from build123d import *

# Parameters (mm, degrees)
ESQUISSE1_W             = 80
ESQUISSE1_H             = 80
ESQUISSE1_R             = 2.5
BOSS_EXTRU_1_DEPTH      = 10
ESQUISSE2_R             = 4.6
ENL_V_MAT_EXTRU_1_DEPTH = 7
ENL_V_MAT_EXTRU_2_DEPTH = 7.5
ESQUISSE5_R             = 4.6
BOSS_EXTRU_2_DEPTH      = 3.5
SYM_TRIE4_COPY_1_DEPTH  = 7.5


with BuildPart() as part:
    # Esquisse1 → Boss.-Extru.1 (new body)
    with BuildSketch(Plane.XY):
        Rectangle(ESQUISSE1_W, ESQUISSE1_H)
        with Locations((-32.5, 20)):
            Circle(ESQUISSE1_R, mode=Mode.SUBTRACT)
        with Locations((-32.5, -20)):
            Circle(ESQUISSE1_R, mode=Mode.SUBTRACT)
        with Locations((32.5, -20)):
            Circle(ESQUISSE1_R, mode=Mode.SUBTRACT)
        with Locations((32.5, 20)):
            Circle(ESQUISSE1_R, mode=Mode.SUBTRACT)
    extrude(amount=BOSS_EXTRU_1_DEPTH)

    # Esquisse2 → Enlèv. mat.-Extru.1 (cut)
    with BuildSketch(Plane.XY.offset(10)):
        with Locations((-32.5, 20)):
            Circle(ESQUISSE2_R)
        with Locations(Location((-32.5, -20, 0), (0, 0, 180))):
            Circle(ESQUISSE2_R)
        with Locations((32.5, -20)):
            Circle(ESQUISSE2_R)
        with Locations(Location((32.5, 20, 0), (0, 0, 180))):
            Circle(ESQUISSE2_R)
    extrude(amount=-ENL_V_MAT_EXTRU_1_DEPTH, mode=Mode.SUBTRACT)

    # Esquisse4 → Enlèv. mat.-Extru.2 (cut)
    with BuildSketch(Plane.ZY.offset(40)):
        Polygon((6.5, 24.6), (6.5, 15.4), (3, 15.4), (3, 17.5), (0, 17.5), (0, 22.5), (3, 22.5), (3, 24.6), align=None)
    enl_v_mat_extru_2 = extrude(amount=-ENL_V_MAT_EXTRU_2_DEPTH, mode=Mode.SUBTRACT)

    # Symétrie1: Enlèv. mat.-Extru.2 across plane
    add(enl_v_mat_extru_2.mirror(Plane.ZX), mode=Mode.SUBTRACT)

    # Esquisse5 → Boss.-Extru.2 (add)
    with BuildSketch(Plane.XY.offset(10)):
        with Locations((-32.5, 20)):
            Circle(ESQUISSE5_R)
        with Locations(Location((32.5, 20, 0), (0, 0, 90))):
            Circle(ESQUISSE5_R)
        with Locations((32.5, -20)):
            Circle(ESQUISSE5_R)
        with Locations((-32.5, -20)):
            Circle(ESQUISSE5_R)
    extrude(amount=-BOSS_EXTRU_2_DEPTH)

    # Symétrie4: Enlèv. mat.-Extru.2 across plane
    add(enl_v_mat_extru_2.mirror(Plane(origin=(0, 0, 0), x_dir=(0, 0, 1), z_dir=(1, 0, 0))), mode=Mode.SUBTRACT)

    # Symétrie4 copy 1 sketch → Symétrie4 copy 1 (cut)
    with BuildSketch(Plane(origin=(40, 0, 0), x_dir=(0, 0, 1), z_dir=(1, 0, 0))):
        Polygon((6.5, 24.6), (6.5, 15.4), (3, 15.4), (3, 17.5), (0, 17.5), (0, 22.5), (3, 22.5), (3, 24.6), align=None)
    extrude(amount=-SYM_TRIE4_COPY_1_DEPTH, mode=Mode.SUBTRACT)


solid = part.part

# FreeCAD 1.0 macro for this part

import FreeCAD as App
import Part
import Sketcher
from FreeCAD import Vector


def add_polygon(sketch, points):
    """Adds a closed chain of lines whose ends are joined by coincident constraints."""
    first, n = sketch.GeometryCount, len(points)
    for a, b in zip(points, points[1:] + points[:1]):
        sketch.addGeometry(Part.LineSegment(App.Vector(*a, 0), App.Vector(*b, 0)), False)
    for i in range(n):
        sketch.addConstraint(Sketcher.Constraint("Coincident", first + i, 2, first + (i + 1) % n, 1))

doc = App.newDocument("Part")
body = doc.addObject("PartDesign::Body", "Body")

sketch1 = body.newObject("Sketcher::SketchObject", "Sketch")
sketch1.AttachmentSupport = (doc.getObject("XY_Plane"), [""])
sketch1.MapMode = "FlatFace"
add_polygon(sketch1, [(-40, 40), (-40, -40), (40, -40), (40, 40)])
sketch1.addGeometry(Part.Circle(Vector(-32.5, -20, 0), Vector(0, 0, 1), 2.5), False)
sketch1.addGeometry(Part.Circle(Vector(32.5, -20, 0), Vector(0, 0, 1), 2.5), False)
sketch1.addGeometry(Part.Circle(Vector(-32.5, 20, 0), Vector(0, 0, 1), 2.5), False)
sketch1.addGeometry(Part.Circle(Vector(32.5, 20, 0), Vector(0, 0, 1), 2.5), False)
sketch1.addConstraint(Sketcher.Constraint("Vertical", 0))
sketch1.addConstraint(Sketcher.Constraint("Horizontal", 1))
sketch1.addConstraint(Sketcher.Constraint("Vertical", 2))
sketch1.addConstraint(Sketcher.Constraint("Horizontal", 3))
sketch1.addConstraint(Sketcher.Constraint("Equal", 4, 5))
sketch1.addConstraint(Sketcher.Constraint("Equal", 5, 6))
sketch1.addConstraint(Sketcher.Constraint("Equal", 6, 7))
sketch1.addConstraint(Sketcher.Constraint("Symmetric", 5, 3, 6, 3, -1, 1))
sketch1.addConstraint(Sketcher.Constraint("Symmetric", 4, 3, 7, 3, -1, 1))
sketch1.addConstraint(Sketcher.Constraint("Symmetric", 0, 2, 2, 2, -1, 1))
sketch1.addConstraint(Sketcher.Constraint("Symmetric", 4, 3, 5, 3, -2))
sketch1.addConstraint(Sketcher.Constraint("Equal", 3, 0))
sketch1.addConstraint(Sketcher.Constraint("Diameter", 4, 5.0))
sketch1.addConstraint(Sketcher.Constraint("DistanceX", 1, 1, 1, 2, 80.0))
sketch1.addConstraint(Sketcher.Constraint("DistanceY", 4, 3, -1, 1, 20.0))
sketch1.addConstraint(Sketcher.Constraint("DistanceX", 4, 3, 5, 3, 65.0))
pad1 = body.newObject("PartDesign::Pad", "Pad")
pad1.Profile = sketch1
pad1.Length = 10

sketch2 = body.newObject("Sketcher::SketchObject", "Sketch001")
sketch2.AttachmentSupport = (doc.getObject("XY_Plane"), [""])
sketch2.MapMode = "FlatFace"
sketch2.AttachmentOffset = App.Placement(Vector(0, 0, 10), App.Rotation())
sketch2.addGeometry(Part.Circle(Vector(-32.5, 20, 0), Vector(0, 0, 1), 4.6), False)
sketch2.addGeometry(Part.Circle(Vector(-32.5, -20, 0), Vector(0, 0, 1), 4.6), False)
sketch2.addGeometry(Part.Circle(Vector(32.5, -20, 0), Vector(0, 0, 1), 4.6), False)
sketch2.addGeometry(Part.Circle(Vector(32.5, 20, 0), Vector(0, 0, 1), 4.6), False)
sketch2.addConstraint(Sketcher.Constraint("Equal", 0, 1))
sketch2.addConstraint(Sketcher.Constraint("Equal", 1, 2))
sketch2.addConstraint(Sketcher.Constraint("Equal", 2, 3))
sketch2.addConstraint(Sketcher.Constraint("Symmetric", 0, 3, 2, 3, -1, 1))
sketch2.addConstraint(Sketcher.Constraint("Symmetric", 1, 3, 3, 3, -1, 1))
sketch2.addConstraint(Sketcher.Constraint("Symmetric", 1, 3, 2, 3, -2))
sketch2.addConstraint(Sketcher.Constraint("Diameter", 0, 9.2))
sketch2.addConstraint(Sketcher.Constraint("DistanceY", -1, 1, 0, 3, 20.0))
sketch2.addConstraint(Sketcher.Constraint("DistanceX", 1, 3, 2, 3, 65.0))
pocket1 = body.newObject("PartDesign::Pocket", "Pocket")
pocket1.Profile = sketch2
pocket1.Length = 7

sketch3 = body.newObject("Sketcher::SketchObject", "Sketch002")
sketch3.AttachmentSupport = (doc.getObject("YZ_Plane"), [""])
sketch3.MapMode = "FlatFace"
sketch3.AttachmentOffset = App.Placement(Vector(0, 0, -40), App.Rotation())
add_polygon(sketch3, [(15.4, 6.5), (24.6, 6.5), (24.6, 3), (22.5, 3), (22.5, 0), (17.5, 0), (17.5, 3), (15.4, 3)])
sketch3.addConstraint(Sketcher.Constraint("Horizontal", 0))
sketch3.addConstraint(Sketcher.Constraint("Vertical", 1))
sketch3.addConstraint(Sketcher.Constraint("Horizontal", 2))
sketch3.addConstraint(Sketcher.Constraint("Vertical", 3))
sketch3.addConstraint(Sketcher.Constraint("Horizontal", 4))
sketch3.addConstraint(Sketcher.Constraint("Vertical", 5))
sketch3.addConstraint(Sketcher.Constraint("Horizontal", 6))
sketch3.addConstraint(Sketcher.Constraint("Vertical", 7))
sketch3.addConstraint(Sketcher.Constraint("PointOnObject", 3, 2, -1))
sketch3.addConstraint(Sketcher.Constraint("Horizontal", 2, 2, 5, 2))
sketch3.addConstraint(Sketcher.Constraint("Equal", 2, 6))
sketch3.addConstraint(Sketcher.Constraint("DistanceX", 4, 2, 4, 1, 5.0))
sketch3.addConstraint(Sketcher.Constraint("DistanceY", 3, 2, 3, 1, 3.0))
sketch3.addConstraint(Sketcher.Constraint("DistanceX", 0, 1, 0, 2, 9.2))
sketch3.addConstraint(Sketcher.Constraint("DistanceY", 1, 2, 1, 1, 3.5))
sketch3.addConstraint(Sketcher.Constraint("DistanceX", -1, 1, 0, 2, 24.6))
pocket2 = body.newObject("PartDesign::Pocket", "Pocket001")
pocket2.Profile = sketch3
pocket2.Length = 7.5
pocket2.Reversed = True
doc.recompute()

mirrored = body.newObject("PartDesign::Mirrored", "Mirrored")
mirrored.Originals = [pocket2]
mirrored.MirrorPlane = (doc.getObject("XZ_Plane"), [""])
body.Tip = mirrored

sketch4 = body.newObject("Sketcher::SketchObject", "Sketch003")
sketch4.AttachmentSupport = (doc.getObject("XY_Plane"), [""])
sketch4.MapMode = "FlatFace"
sketch4.AttachmentOffset = App.Placement(Vector(0, 0, 10), App.Rotation())
sketch4.addGeometry(Part.Circle(Vector(-32.5, 20, 0), Vector(0, 0, 1), 4.6), False)
sketch4.addGeometry(Part.Circle(Vector(32.5, 20, 0), Vector(0, 0, 1), 4.6), False)
sketch4.addGeometry(Part.Circle(Vector(32.5, -20, 0), Vector(0, 0, 1), 4.6), False)
sketch4.addGeometry(Part.Circle(Vector(-32.5, -20, 0), Vector(0, 0, 1), 4.6), False)
sketch4.addConstraint(Sketcher.Constraint("Equal", 0, 1))
sketch4.addConstraint(Sketcher.Constraint("Equal", 1, 2))
sketch4.addConstraint(Sketcher.Constraint("Equal", 2, 3))
sketch4.addConstraint(Sketcher.Constraint("Symmetric", 0, 3, 2, 3, -1, 1))
sketch4.addConstraint(Sketcher.Constraint("Symmetric", 1, 3, 3, 3, -1, 1))
sketch4.addConstraint(Sketcher.Constraint("Symmetric", 0, 3, 1, 3, -2))
sketch4.addConstraint(Sketcher.Constraint("Diameter", 0, 9.2))
sketch4.addConstraint(Sketcher.Constraint("DistanceY", -1, 1, 0, 3, 20.0))
sketch4.addConstraint(Sketcher.Constraint("DistanceX", 0, 3, 1, 3, 65.0))
pad2 = body.newObject("PartDesign::Pad", "Pad001")
pad2.Profile = sketch4
pad2.Length = 3.5
pad2.Reversed = True
doc.recompute()

mirrored2 = body.newObject("PartDesign::Mirrored", "Mirrored001")
mirrored2.Originals = [pocket2]
mirrored2.MirrorPlane = (doc.getObject("YZ_Plane"), [""])
body.Tip = mirrored2

sketch5 = body.newObject("Sketcher::SketchObject", "Sketch004")
sketch5.AttachmentSupport = (doc.getObject("YZ_Plane"), [""])
sketch5.MapMode = "FlatFace"
sketch5.AttachmentOffset = App.Placement(Vector(0, 0, 40), App.Rotation())
add_polygon(sketch5, [(-15.4, 6.5), (-24.6, 6.5), (-24.6, 3), (-22.5, 3), (-22.5, 0), (-17.5, 0), (-17.5, 3), (-15.4, 3)])
sketch5.addConstraint(Sketcher.Constraint("Horizontal", 0))
sketch5.addConstraint(Sketcher.Constraint("Vertical", 1))
sketch5.addConstraint(Sketcher.Constraint("Horizontal", 2))
sketch5.addConstraint(Sketcher.Constraint("Vertical", 3))
sketch5.addConstraint(Sketcher.Constraint("Horizontal", 4))
sketch5.addConstraint(Sketcher.Constraint("Vertical", 5))
sketch5.addConstraint(Sketcher.Constraint("Horizontal", 6))
sketch5.addConstraint(Sketcher.Constraint("Vertical", 7))
sketch5.addConstraint(Sketcher.Constraint("PointOnObject", 3, 2, -1))
sketch5.addConstraint(Sketcher.Constraint("Horizontal", 2, 2, 5, 2))
sketch5.addConstraint(Sketcher.Constraint("Equal", 2, 6))
sketch5.addConstraint(Sketcher.Constraint("DistanceX", 4, 1, 4, 2, 5.0))
sketch5.addConstraint(Sketcher.Constraint("DistanceY", 3, 2, 3, 1, 3.0))
sketch5.addConstraint(Sketcher.Constraint("DistanceX", 0, 2, 0, 1, 9.2))
sketch5.addConstraint(Sketcher.Constraint("DistanceY", 1, 2, 1, 1, 3.5))
sketch5.addConstraint(Sketcher.Constraint("DistanceX", 0, 2, -1, 1, 24.6))
pocket3 = body.newObject("PartDesign::Pocket", "Pocket002")
pocket3.Profile = sketch5
pocket3.Length = 7.5

doc.recompute()
